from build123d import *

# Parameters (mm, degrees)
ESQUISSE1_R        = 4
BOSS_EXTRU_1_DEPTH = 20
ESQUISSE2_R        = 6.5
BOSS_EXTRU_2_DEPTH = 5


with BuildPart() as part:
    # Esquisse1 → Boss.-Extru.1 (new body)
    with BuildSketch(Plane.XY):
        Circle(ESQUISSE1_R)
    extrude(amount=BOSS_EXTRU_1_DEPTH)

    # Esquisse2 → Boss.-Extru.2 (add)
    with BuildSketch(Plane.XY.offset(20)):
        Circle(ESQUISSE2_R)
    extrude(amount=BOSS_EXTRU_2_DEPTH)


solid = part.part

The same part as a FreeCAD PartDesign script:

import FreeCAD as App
import Part
import Sketcher

doc = App.newDocument("Part")
body = doc.addObject("PartDesign::Body", "Body")

sketch1 = body.newObject("Sketcher::SketchObject", "Sketch")
sketch1.AttachmentSupport = (doc.getObject("XY_Plane"), [""])
sketch1.MapMode = "FlatFace"
sketch1.addGeometry(Part.Circle(App.Vector(0, 0, 0), App.Vector(0, 0, 1), 4), False)
sketch1.addConstraint(Sketcher.Constraint("Coincident", 0, 3, -1, 1))
sketch1.addConstraint(Sketcher.Constraint("Diameter", 0, 8.0))
pad1 = body.newObject("PartDesign::Pad", "Pad")
pad1.Profile = sketch1
pad1.Length = 20

sketch2 = body.newObject("Sketcher::SketchObject", "Sketch001")
sketch2.AttachmentSupport = (doc.getObject("XY_Plane"), [""])
sketch2.MapMode = "FlatFace"
sketch2.AttachmentOffset = App.Placement(App.Vector(0, 0, 20), App.Rotation())
sketch2.addGeometry(Part.Circle(App.Vector(0, 0, 0), App.Vector(0, 0, 1), 6), False)
sketch2.addConstraint(Sketcher.Constraint("Coincident", 0, 3, -1, 1))
sketch2.addConstraint(Sketcher.Constraint("Diameter", 0, 13.0))
pad2 = body.newObject("PartDesign::Pad", "Pad001")
pad2.Profile = sketch2
pad2.Length = 5

doc.recompute()
